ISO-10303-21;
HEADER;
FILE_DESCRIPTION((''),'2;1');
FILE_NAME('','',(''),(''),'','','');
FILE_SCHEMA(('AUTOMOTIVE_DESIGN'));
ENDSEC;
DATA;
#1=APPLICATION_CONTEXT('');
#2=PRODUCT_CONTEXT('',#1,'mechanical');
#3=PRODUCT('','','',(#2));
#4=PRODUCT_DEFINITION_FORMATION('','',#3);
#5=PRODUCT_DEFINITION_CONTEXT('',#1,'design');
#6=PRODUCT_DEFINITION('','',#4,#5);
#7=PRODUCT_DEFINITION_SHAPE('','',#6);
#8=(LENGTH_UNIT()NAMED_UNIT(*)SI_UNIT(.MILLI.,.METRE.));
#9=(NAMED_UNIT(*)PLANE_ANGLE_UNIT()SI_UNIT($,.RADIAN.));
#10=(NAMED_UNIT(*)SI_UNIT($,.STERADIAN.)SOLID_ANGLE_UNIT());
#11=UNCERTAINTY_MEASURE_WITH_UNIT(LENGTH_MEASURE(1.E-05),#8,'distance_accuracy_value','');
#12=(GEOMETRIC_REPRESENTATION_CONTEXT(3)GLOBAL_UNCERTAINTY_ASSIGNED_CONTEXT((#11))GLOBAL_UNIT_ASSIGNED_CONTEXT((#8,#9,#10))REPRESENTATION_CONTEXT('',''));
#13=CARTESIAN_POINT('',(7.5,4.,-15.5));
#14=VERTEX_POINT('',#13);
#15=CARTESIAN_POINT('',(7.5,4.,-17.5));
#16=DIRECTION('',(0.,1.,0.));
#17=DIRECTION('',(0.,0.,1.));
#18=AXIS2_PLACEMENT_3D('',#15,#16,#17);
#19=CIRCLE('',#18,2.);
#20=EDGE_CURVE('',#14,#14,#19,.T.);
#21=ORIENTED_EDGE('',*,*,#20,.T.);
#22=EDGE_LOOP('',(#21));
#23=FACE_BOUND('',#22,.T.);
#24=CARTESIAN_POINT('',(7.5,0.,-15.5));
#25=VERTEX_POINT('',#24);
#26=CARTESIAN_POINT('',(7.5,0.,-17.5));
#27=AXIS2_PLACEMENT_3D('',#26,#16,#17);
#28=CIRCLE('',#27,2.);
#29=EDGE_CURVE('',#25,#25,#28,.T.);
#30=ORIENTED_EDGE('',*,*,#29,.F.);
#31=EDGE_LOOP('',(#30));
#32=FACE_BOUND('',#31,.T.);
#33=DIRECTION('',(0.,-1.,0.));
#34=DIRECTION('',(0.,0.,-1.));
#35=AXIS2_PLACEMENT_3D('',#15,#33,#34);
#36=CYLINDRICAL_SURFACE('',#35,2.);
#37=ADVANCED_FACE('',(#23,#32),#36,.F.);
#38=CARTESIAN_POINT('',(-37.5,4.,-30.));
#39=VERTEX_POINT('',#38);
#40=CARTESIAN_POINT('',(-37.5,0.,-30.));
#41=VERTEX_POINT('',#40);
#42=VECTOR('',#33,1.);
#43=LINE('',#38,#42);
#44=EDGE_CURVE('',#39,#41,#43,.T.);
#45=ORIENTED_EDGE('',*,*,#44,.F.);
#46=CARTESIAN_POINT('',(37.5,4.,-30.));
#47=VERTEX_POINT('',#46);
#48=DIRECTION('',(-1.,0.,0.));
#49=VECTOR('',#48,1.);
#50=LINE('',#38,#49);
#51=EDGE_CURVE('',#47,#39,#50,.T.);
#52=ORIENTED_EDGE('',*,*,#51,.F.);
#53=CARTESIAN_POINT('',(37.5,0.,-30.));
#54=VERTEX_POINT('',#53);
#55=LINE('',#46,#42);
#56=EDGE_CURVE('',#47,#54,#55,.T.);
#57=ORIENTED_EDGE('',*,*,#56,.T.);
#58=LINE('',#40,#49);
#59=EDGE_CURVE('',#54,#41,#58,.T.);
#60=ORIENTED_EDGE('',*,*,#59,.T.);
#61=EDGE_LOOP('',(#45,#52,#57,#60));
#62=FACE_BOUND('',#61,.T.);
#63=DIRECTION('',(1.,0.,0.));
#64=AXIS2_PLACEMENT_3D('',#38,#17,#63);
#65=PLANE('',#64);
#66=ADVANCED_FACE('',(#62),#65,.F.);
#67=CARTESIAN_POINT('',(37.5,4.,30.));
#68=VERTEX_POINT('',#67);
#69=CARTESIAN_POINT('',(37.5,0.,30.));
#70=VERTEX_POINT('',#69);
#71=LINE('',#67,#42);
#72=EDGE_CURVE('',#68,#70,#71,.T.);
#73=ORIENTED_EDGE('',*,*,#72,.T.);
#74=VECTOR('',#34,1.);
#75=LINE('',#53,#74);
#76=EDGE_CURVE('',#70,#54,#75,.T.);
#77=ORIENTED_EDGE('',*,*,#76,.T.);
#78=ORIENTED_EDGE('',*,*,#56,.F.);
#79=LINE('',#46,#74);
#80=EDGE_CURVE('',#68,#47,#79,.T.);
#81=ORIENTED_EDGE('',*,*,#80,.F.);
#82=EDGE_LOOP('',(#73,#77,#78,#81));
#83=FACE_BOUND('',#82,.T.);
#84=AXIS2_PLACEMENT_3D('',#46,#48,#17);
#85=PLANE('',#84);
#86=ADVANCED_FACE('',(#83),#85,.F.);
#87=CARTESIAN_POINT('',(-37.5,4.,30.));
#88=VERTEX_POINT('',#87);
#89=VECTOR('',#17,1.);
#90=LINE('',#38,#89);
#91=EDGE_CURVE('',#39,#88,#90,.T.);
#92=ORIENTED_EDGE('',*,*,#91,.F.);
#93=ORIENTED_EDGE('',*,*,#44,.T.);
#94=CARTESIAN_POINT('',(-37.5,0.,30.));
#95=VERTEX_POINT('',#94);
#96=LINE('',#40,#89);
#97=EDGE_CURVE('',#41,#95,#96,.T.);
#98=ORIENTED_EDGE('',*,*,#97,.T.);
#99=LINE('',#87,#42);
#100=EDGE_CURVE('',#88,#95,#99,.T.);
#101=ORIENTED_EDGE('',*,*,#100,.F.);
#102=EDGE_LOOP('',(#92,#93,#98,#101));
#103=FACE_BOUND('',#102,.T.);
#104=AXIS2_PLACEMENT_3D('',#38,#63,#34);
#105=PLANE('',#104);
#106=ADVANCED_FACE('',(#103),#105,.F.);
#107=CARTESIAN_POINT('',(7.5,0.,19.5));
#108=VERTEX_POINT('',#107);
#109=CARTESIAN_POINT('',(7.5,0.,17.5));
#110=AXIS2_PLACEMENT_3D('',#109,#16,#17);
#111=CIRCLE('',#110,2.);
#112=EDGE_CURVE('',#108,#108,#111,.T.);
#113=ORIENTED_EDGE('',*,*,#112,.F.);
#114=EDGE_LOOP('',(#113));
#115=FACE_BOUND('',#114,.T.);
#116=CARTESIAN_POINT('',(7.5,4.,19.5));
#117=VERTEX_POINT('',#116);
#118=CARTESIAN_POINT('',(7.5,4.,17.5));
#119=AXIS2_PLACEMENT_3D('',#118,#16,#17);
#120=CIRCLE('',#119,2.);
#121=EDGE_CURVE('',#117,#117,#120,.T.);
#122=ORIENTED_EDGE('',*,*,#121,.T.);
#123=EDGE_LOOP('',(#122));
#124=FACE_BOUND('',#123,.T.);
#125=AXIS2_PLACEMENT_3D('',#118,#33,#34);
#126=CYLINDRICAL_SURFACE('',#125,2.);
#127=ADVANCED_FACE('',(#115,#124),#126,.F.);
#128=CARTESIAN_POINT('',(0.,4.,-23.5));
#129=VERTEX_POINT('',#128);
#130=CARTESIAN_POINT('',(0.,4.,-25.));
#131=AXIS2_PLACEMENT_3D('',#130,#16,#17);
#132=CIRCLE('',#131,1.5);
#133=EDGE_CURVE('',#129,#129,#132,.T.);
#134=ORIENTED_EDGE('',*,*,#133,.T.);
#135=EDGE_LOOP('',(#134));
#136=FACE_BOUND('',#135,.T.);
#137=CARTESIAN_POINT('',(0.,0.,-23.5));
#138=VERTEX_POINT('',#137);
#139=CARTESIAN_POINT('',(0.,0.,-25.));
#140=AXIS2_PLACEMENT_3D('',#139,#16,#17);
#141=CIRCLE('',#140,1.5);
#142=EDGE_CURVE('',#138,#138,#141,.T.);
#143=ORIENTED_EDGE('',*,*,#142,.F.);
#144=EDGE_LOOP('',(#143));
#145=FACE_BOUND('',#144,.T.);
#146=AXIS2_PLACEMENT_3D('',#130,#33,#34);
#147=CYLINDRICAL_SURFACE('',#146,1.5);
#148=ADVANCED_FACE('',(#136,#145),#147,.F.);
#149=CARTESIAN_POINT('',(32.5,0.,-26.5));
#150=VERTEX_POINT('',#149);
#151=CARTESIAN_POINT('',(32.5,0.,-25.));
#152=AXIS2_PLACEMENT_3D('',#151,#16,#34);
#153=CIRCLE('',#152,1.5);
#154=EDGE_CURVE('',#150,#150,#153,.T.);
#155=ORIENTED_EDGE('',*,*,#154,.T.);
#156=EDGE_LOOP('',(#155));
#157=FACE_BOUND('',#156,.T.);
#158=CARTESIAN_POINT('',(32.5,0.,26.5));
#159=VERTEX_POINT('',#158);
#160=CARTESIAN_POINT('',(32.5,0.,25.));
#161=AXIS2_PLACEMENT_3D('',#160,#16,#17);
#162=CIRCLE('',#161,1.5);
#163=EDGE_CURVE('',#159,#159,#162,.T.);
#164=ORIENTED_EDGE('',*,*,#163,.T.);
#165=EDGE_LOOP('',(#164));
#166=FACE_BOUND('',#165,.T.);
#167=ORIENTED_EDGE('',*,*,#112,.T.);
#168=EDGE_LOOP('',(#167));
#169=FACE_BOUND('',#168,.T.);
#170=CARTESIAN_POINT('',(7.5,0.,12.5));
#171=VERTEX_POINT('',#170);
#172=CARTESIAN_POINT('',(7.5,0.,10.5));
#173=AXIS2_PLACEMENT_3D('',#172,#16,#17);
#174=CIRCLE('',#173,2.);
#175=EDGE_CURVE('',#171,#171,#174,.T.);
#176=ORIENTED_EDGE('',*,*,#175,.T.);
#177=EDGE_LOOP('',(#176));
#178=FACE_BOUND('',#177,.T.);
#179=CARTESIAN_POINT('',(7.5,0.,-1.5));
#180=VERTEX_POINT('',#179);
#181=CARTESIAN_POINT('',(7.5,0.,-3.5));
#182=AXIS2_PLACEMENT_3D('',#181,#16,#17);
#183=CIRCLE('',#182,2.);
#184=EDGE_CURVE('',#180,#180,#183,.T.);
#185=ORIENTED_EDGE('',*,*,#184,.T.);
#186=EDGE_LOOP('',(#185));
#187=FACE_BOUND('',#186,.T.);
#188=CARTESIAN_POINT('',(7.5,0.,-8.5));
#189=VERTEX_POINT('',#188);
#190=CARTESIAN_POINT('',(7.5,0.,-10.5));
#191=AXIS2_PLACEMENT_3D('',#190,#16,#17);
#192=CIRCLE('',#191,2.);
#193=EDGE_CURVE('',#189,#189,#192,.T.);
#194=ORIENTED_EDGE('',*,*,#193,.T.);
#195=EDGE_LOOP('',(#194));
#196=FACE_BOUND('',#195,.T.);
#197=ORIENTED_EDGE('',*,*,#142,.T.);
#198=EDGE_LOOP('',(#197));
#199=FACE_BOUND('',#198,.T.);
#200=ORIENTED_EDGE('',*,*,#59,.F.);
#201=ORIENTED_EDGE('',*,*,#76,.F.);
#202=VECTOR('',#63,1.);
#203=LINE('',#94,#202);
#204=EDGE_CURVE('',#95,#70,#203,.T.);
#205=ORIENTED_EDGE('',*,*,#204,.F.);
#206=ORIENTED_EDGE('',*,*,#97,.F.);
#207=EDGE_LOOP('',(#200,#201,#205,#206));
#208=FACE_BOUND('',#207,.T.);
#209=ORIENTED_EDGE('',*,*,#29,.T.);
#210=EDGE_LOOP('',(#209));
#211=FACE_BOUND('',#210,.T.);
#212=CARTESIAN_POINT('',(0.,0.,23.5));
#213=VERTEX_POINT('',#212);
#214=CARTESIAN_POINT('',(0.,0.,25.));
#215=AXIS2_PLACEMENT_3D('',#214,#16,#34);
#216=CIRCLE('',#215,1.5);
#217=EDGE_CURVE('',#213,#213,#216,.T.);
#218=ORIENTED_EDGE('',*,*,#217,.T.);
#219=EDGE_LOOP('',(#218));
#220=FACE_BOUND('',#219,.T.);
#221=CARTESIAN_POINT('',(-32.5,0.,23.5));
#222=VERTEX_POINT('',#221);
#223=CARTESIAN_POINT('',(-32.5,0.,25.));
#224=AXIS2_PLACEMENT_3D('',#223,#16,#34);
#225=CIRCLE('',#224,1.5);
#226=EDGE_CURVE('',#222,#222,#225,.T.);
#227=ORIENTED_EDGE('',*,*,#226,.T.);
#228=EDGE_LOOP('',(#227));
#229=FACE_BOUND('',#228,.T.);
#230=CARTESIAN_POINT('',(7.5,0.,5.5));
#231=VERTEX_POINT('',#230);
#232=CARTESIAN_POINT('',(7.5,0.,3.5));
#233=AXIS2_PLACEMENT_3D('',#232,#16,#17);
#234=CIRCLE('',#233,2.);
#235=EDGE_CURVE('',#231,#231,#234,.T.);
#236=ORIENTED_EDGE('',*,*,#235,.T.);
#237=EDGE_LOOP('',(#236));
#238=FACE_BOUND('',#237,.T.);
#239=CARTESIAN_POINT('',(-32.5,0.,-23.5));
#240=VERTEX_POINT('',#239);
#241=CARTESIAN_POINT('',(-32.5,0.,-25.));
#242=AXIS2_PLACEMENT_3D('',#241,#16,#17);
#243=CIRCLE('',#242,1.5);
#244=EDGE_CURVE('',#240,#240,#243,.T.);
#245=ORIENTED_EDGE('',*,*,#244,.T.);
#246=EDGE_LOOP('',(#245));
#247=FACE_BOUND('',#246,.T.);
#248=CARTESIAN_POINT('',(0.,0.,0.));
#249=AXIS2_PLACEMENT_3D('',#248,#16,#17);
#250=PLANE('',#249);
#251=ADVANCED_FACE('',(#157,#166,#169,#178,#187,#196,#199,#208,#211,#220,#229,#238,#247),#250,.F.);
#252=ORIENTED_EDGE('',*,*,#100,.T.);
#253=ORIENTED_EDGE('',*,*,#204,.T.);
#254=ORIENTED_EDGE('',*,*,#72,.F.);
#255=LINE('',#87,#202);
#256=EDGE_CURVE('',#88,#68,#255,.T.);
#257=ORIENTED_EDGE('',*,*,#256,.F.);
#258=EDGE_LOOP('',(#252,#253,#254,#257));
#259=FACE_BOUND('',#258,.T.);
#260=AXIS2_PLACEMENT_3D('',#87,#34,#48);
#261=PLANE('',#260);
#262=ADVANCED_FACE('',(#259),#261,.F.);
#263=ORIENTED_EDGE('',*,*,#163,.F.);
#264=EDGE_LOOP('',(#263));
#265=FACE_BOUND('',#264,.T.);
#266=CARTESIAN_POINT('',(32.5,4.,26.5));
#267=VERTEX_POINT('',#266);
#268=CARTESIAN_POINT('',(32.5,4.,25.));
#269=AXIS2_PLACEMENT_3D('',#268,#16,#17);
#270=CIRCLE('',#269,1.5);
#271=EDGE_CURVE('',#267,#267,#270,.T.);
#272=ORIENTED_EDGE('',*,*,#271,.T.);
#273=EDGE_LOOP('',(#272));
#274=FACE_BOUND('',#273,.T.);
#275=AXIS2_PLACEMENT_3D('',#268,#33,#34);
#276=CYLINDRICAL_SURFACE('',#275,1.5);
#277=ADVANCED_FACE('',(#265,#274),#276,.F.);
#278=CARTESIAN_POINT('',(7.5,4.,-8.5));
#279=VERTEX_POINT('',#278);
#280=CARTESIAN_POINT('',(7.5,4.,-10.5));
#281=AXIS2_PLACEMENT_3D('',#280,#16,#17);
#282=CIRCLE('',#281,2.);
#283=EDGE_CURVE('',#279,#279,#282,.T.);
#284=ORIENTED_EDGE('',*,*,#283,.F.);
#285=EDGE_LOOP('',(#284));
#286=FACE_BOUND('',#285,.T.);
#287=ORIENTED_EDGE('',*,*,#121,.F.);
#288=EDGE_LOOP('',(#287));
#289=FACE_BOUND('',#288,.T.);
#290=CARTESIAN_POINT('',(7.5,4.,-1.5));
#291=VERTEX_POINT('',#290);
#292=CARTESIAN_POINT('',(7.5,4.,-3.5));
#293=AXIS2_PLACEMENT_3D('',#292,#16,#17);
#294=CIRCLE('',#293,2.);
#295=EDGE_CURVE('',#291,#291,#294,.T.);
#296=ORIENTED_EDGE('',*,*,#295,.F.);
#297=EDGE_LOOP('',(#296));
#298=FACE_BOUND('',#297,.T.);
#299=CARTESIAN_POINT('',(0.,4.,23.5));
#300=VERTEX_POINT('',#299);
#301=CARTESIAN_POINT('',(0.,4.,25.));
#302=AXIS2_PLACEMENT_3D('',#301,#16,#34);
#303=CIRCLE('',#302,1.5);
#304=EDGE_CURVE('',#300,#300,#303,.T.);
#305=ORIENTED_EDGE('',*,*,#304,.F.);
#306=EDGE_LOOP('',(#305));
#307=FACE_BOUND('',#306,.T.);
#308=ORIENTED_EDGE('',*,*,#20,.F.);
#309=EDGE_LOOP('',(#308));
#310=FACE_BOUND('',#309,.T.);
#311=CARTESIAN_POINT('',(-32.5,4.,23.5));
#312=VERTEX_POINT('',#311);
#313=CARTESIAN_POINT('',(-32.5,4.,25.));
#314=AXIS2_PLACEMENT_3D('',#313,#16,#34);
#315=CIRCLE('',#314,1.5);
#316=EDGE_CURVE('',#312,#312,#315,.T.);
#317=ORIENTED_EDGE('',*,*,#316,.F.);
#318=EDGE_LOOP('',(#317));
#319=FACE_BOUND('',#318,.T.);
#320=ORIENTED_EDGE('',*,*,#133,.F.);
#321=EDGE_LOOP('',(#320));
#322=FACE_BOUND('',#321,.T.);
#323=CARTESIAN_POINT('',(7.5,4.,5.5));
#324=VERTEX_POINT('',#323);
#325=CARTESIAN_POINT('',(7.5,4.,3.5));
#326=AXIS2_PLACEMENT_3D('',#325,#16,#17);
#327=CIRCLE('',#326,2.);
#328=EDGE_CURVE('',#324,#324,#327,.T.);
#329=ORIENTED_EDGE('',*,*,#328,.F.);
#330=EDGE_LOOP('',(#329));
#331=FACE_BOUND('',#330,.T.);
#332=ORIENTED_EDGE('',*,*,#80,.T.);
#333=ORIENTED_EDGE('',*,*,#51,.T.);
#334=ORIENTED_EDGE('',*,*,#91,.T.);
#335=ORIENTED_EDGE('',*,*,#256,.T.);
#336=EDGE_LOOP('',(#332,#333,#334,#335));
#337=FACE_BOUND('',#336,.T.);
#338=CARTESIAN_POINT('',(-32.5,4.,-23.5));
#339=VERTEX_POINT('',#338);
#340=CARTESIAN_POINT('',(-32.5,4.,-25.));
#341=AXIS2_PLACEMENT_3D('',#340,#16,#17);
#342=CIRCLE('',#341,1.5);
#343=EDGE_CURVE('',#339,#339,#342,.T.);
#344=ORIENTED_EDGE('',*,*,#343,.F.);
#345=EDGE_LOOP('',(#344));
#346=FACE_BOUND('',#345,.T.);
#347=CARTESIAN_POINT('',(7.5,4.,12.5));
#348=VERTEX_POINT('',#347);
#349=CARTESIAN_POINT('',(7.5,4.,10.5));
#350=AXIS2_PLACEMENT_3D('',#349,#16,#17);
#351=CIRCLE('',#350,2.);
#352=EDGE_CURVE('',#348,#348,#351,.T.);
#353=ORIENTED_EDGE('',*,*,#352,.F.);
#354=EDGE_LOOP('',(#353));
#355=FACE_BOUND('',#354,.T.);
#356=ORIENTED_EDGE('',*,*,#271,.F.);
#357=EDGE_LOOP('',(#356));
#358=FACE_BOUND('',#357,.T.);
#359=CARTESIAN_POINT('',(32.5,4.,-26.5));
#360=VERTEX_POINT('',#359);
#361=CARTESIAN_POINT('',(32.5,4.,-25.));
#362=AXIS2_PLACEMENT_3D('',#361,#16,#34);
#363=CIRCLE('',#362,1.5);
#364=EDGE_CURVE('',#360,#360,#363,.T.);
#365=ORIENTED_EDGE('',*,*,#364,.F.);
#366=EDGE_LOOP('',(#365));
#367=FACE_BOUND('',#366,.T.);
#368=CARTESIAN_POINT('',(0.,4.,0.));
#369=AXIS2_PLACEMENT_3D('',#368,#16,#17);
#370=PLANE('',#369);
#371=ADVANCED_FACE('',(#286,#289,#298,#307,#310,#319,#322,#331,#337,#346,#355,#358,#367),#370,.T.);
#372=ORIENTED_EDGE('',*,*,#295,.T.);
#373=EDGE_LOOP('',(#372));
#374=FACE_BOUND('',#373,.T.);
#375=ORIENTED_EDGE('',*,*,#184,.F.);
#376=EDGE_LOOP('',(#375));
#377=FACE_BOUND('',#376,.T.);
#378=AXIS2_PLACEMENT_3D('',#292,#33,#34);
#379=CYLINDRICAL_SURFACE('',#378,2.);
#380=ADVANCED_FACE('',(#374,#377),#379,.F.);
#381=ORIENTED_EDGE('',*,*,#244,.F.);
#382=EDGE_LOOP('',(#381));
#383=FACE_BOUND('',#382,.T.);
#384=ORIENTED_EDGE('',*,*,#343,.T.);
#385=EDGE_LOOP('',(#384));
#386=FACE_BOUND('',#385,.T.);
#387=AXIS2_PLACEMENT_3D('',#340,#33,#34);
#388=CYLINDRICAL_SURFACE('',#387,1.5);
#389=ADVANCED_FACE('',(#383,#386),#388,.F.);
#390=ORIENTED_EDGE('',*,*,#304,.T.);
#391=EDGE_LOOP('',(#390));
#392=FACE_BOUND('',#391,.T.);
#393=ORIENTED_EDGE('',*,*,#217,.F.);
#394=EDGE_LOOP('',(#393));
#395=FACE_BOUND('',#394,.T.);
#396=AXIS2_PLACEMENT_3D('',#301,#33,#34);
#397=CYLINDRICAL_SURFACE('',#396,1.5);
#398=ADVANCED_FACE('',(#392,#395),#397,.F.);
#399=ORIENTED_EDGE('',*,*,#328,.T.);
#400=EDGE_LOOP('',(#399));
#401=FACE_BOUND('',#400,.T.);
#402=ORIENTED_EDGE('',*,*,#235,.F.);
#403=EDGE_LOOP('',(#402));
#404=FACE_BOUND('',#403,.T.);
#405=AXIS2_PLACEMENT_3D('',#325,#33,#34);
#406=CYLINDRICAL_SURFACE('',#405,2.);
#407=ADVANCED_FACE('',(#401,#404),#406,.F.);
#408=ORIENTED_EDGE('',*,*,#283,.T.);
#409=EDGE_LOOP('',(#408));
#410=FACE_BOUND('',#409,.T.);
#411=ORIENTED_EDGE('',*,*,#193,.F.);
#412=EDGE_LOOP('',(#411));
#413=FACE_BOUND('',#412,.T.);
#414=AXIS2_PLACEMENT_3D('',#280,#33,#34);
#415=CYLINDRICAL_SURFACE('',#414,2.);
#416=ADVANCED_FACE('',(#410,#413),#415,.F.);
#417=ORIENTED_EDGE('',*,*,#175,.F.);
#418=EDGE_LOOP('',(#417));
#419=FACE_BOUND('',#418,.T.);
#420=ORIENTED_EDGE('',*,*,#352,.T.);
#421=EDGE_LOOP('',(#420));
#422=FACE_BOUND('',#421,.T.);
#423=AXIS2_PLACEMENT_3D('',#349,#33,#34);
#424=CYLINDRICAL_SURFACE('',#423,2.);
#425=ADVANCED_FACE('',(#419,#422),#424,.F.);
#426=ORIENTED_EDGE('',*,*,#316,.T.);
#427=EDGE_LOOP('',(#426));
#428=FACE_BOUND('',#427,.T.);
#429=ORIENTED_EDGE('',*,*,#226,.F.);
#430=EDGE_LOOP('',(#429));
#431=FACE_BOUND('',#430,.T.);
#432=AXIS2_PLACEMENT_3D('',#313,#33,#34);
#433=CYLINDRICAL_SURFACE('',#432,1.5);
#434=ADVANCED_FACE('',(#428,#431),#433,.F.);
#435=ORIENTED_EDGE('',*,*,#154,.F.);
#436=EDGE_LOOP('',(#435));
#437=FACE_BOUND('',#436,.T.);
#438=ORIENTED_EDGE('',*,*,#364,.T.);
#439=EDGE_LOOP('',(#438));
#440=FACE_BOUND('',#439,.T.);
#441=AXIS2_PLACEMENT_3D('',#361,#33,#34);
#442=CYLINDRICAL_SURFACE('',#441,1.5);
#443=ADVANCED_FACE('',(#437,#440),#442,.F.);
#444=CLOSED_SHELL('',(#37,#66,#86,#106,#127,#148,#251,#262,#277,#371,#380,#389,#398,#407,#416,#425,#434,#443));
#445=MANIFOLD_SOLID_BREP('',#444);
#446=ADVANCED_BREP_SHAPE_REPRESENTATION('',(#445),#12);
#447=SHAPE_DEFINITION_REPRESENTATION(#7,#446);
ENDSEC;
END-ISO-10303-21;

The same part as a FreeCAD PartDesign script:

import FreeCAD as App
import Part
import Sketcher

V = App.Vector
Q = App.Units.Quantity


def add_polygon(sketch, points):
    """Adds a closed chain of lines whose ends are joined by coincident constraints."""
    first, n = sketch.GeometryCount, len(points)
    for a, b in zip(points, points[1:] + points[:1]):
        sketch.addGeometry(Part.LineSegment(App.Vector(*a, 0), App.Vector(*b, 0)), False)
    for i in range(n):
        sketch.addConstraint(Sketcher.Constraint("Coincident", first + i, 2, first + (i + 1) % n, 1))

doc = App.newDocument("Part")
params = doc.addObject("Spreadsheet::Sheet", "Params")
for row, (alias, value) in enumerate([
    ("sketch1_width", "75 mm"),
    ("sketch1_height", "60 mm"),
    ("pad1_length", "4 mm"),
    ("sketch2_diameter", "4 mm"),
    ("pocket1_length", "4 mm"),
    ("sketch3_diameter", "3 mm"),
], start=1):
    params.set(f"A{row}", alias)
    params.set(f"B{row}", "=" + value)
    params.setAlias(f"B{row}", alias)

body = doc.addObject("PartDesign::Body", "Body")

# Sketch on XZ plane
sketch1 = doc.addObject("Sketcher::SketchObject", "Sketch")
body.addObject(sketch1)
sketch1.AttachmentSupport = (doc.XZ_Plane, [""])
sketch1.MapMode = "FlatFace"
add_polygon(sketch1, [(-38, -30), (-38, 30), (38, 30), (38, -30)])  # lines 0-3
sketch1.addConstraint([
    Sketcher.Constraint("Vertical", 0),
    Sketcher.Constraint("Horizontal", 1),
    Sketcher.Constraint("Vertical", 2),
    Sketcher.Constraint("Horizontal", 3),
    Sketcher.Constraint("Symmetric", 0, 2, 2, 2, -1, 1),
    Sketcher.Constraint("DistanceX", 1, 1, 1, 2, Q("75 mm")),
    Sketcher.Constraint("DistanceY", 0, 1, 0, 2, Q("60 mm")),
])
sketch1.setExpression("Constraints[9]", "Params.sketch1_width")
sketch1.setExpression("Constraints[10]", "Params.sketch1_height")
pad1 = doc.addObject("PartDesign::Pad", "Pad")
body.addObject(pad1)
pad1.Profile = sketch1
pad1.setExpression("Length", "Params.pad1_length")
pad1.Reversed = True

# Sketch on XZ plane
sketch2 = doc.addObject("Sketcher::SketchObject", "Sketch001")
body.addObject(sketch2)
sketch2.AttachmentSupport = (doc.XZ_Plane, [""])
sketch2.MapMode = "FlatFace"
sketch2.addGeometry([
    Part.Circle(V(7.5, -17.5, 0), V(0, 0, 1), 2),  # 0
    Part.Circle(V(7.5, -10.5, 0), V(0, 0, 1), 2),  # 1
    Part.Circle(V(7.5, -3.5, 0), V(0, 0, 1), 2),  # 2
    Part.Circle(V(7.5, 3.5, 0), V(0, 0, 1), 2),  # 3
    Part.Circle(V(7.5, 10.5, 0), V(0, 0, 1), 2),  # 4
    Part.Circle(V(7.5, 17.5, 0), V(0, 0, 1), 2),  # 5
], False)
sketch2.addConstraint([
    Sketcher.Constraint("Equal", 0, 1),
    Sketcher.Constraint("Equal", 1, 2),
    Sketcher.Constraint("Equal", 2, 3),
    Sketcher.Constraint("Equal", 3, 4),
    Sketcher.Constraint("Equal", 4, 5),
    Sketcher.Constraint("Symmetric", 2, 3, 3, 3, -1),
    Sketcher.Constraint("Symmetric", 1, 3, 4, 3, -1),
    Sketcher.Constraint("Symmetric", 0, 3, 5, 3, -1),
    Sketcher.Constraint("Vertical", 0, 3, 1, 3),
    Sketcher.Constraint("Vertical", 1, 3, 2, 3),
    Sketcher.Constraint("Diameter", 0, Q("4 mm")),
    Sketcher.Constraint("DistanceY", 0, 3, 1, 3, Q("7 mm")),
    Sketcher.Constraint("DistanceY", 1, 3, 2, 3, Q("7 mm")),
    Sketcher.Constraint("DistanceY", 2, 3, 3, 3, Q("7 mm")),
    Sketcher.Constraint("DistanceX", -1, 1, 0, 3, Q("7.5 mm")),
])
sketch2.setExpression("Constraints[10]", "Params.sketch2_diameter")
pocket1 = doc.addObject("PartDesign::Pocket", "Pocket")
body.addObject(pocket1)
pocket1.Profile = sketch2
pocket1.setExpression("Length", "Params.pocket1_length")

# Sketch on XZ plane
sketch3 = doc.addObject("Sketcher::SketchObject", "Sketch002")
body.addObject(sketch3)
sketch3.AttachmentSupport = (doc.XZ_Plane, [""])
sketch3.MapMode = "FlatFace"
sketch3.addGeometry([
    Part.Circle(V(-32.5, -25, 0), V(0, 0, 1), 1.5),  # 0
    Part.Circle(V(32.5, -25, 0), V(0, 0, 1), 1.5),  # 1
    Part.Circle(V(32.5, 25, 0), V(0, 0, 1), 1.5),  # 2
    Part.Circle(V(-32.5, 25, 0), V(0, 0, 1), 1.5),  # 3
    Part.Circle(V(0, 25, 0), V(0, 0, 1), 1.5),  # 4
    Part.Circle(V(0, -25, 0), V(0, 0, 1), 1.5),  # 5
], False)
sketch3.addConstraint([
    Sketcher.Constraint("Equal", 0, 1),
    Sketcher.Constraint("Equal", 1, 2),
    Sketcher.Constraint("Equal", 2, 3),
    Sketcher.Constraint("Equal", 3, 4),
    Sketcher.Constraint("Equal", 4, 5),
    Sketcher.Constraint("Symmetric", 0, 3, 2, 3, -1, 1),
    Sketcher.Constraint("Symmetric", 1, 3, 3, 3, -1, 1),
    Sketcher.Constraint("Symmetric", 4, 3, 5, 3, -1, 1),
    Sketcher.Constraint("Symmetric", 0, 3, 1, 3, -2),
    Sketcher.Constraint("PointOnObject", 4, 3, -2),
    Sketcher.Constraint("Horizontal", 3, 3, 4, 3),
    Sketcher.Constraint("Diameter", 0, Q("3 mm")),
    Sketcher.Constraint("DistanceY", 0, 3, -1, 1, Q("25 mm")),
    Sketcher.Constraint("DistanceX", 0, 3, 1, 3, Q("65 mm")),
])
sketch3.setExpression("Constraints[11]", "Params.sketch3_diameter")
pocket2 = doc.addObject("PartDesign::Pocket", "Pocket001")
body.addObject(pocket2)
pocket2.Profile = sketch3
pocket2.Type = "ThroughAll"

doc.recompute()
